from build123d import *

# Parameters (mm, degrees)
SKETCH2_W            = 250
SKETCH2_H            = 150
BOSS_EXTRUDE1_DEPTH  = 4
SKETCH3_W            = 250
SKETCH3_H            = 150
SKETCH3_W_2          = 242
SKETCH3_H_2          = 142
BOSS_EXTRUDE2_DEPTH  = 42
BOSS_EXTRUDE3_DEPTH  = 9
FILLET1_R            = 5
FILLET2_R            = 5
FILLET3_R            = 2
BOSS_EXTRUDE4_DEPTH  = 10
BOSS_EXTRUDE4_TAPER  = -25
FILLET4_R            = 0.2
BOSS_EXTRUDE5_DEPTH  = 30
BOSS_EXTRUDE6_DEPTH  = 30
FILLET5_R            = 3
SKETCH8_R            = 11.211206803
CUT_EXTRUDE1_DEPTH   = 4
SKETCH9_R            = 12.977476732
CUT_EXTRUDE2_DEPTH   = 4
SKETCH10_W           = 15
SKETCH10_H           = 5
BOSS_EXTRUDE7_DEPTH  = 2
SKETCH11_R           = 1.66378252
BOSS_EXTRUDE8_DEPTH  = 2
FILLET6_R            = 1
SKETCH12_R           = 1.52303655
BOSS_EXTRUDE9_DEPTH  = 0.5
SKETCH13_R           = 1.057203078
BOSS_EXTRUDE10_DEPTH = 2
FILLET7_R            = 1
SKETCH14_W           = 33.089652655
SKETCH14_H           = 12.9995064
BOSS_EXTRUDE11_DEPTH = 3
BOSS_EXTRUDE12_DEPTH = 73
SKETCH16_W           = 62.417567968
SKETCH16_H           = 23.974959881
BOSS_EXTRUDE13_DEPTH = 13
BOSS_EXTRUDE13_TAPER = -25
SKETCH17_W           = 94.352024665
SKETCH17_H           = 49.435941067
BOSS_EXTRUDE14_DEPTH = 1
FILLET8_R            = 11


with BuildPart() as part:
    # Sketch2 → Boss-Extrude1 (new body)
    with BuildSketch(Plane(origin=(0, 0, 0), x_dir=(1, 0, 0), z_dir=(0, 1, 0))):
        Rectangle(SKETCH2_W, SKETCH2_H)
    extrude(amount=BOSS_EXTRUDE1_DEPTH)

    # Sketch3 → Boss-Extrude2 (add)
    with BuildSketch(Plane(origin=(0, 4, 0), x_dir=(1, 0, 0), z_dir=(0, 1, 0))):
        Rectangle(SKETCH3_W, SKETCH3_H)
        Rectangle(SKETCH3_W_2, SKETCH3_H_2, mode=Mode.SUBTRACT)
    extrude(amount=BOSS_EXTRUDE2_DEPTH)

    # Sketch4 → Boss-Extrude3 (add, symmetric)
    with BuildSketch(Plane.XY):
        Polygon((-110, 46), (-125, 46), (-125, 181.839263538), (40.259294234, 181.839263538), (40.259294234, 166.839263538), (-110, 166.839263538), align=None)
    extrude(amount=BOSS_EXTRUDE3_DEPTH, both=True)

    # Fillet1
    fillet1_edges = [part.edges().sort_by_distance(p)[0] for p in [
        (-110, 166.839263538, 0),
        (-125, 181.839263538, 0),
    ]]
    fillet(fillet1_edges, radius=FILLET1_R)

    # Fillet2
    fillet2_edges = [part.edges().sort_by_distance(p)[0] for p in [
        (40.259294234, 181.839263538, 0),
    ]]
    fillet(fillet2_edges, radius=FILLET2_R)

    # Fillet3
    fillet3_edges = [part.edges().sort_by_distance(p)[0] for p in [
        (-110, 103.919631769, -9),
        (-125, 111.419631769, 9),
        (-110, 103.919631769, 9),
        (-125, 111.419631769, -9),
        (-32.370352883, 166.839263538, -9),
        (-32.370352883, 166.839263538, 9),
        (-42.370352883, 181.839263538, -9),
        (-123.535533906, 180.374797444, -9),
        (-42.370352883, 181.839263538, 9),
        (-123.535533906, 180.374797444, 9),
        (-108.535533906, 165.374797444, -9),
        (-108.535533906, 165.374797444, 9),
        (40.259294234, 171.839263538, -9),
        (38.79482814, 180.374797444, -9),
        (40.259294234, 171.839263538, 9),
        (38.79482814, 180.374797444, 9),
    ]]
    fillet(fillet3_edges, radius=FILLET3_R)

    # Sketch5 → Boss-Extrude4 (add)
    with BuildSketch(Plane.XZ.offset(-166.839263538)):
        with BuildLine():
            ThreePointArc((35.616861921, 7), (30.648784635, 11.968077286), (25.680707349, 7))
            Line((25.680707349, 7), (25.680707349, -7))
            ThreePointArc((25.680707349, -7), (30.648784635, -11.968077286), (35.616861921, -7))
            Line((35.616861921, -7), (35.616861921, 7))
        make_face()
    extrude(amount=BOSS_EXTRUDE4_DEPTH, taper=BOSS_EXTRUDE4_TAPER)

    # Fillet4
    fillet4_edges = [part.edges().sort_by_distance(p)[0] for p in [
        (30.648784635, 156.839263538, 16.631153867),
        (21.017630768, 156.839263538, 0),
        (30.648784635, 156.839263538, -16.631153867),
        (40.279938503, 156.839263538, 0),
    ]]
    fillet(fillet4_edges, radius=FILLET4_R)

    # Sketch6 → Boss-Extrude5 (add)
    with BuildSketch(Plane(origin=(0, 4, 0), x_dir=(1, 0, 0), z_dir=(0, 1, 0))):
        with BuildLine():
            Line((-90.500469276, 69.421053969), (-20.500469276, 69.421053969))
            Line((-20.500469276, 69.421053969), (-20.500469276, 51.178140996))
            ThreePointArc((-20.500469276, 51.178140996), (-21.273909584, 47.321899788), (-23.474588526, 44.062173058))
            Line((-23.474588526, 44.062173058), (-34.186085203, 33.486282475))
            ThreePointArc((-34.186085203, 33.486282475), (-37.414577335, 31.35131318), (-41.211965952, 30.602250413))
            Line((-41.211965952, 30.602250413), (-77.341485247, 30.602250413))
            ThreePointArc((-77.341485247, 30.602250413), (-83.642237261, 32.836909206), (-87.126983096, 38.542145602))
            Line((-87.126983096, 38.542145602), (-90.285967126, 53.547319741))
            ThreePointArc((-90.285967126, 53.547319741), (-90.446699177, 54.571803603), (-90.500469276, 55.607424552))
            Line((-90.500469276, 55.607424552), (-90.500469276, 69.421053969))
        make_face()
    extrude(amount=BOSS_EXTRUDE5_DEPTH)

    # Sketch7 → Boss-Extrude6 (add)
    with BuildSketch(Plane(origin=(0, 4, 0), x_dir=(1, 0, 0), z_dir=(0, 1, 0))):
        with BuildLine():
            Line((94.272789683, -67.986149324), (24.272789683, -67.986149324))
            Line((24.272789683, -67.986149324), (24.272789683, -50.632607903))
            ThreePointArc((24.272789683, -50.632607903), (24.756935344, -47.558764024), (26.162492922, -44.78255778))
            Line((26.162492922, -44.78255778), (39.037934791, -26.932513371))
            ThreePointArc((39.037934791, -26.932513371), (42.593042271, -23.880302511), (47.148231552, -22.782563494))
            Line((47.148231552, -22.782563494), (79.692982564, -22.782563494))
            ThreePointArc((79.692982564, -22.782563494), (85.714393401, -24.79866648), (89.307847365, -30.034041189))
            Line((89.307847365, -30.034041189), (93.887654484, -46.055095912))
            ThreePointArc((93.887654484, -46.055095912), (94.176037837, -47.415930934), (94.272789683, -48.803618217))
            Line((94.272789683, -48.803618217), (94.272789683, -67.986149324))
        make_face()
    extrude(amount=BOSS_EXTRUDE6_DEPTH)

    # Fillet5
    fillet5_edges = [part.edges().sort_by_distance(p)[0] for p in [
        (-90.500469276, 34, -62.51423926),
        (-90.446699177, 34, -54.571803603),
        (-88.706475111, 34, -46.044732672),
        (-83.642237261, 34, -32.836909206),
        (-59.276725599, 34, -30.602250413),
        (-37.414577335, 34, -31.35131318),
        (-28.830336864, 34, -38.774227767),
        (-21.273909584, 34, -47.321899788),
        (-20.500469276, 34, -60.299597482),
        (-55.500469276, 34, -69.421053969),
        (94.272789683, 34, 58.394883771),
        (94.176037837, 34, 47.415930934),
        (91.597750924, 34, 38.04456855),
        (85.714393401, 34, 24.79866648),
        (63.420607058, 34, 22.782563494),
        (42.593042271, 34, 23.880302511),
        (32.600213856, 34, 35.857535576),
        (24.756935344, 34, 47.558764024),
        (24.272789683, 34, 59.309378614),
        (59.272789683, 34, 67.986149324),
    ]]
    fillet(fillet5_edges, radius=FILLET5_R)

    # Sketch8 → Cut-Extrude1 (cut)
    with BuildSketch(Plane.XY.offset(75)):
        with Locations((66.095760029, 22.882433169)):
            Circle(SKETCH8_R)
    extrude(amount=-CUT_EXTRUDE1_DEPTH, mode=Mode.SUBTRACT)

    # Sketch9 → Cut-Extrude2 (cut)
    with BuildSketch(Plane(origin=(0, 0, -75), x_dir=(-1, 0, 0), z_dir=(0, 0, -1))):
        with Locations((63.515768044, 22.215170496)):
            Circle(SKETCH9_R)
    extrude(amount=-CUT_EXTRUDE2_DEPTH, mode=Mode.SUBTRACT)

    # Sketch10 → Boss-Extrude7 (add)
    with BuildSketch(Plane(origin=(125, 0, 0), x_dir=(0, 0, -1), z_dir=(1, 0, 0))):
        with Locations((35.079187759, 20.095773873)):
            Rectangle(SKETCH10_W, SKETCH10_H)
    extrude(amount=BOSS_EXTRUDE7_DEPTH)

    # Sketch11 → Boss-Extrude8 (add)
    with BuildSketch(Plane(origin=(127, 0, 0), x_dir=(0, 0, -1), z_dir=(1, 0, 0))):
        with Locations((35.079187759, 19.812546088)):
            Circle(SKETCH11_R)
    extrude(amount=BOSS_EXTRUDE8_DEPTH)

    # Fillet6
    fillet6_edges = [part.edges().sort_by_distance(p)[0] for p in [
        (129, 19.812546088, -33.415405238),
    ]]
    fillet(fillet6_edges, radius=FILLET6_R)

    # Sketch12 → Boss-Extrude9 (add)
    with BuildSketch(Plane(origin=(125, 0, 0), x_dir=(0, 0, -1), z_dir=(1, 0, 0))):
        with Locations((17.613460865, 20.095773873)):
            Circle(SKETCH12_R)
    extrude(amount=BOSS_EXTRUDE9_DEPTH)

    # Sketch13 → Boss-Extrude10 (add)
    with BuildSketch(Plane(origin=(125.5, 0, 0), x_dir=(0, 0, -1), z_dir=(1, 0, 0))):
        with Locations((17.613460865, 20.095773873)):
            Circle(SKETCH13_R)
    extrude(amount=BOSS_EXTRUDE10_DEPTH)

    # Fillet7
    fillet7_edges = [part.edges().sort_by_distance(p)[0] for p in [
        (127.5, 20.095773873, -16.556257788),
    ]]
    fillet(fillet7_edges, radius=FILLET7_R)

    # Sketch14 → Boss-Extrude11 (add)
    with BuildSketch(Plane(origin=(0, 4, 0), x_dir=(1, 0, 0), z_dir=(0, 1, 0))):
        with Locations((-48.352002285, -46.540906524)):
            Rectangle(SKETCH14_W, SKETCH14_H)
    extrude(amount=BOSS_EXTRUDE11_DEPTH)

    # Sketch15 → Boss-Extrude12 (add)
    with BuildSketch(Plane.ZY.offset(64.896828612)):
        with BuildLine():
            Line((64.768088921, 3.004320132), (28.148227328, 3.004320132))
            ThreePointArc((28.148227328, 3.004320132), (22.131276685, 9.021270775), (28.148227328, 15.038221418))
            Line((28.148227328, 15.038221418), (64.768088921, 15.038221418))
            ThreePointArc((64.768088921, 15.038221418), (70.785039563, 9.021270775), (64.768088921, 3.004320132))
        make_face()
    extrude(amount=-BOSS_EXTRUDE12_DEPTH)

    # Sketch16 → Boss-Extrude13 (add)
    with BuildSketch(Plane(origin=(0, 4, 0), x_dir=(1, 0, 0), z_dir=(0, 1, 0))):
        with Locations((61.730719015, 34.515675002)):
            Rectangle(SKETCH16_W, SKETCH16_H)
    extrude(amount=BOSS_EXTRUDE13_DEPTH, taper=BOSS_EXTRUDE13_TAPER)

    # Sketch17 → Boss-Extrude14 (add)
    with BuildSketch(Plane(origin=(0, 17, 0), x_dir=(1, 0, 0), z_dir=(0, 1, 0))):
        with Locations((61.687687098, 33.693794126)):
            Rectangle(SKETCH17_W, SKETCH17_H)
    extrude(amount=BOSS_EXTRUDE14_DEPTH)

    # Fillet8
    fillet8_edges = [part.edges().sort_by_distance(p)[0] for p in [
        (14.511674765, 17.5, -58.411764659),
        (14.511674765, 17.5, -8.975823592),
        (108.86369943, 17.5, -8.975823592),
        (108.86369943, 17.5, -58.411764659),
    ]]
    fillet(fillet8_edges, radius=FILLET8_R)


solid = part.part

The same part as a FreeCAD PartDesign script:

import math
import FreeCAD as App
import Part
import Sketcher
Q = App.Units.Quantity


def edges_at(feature, points):
    """Names of the edges that pass closest to the given points."""
    edges = feature.Shape.Edges
    near = lambda p: min(range(len(edges)), key=lambda i: edges[i].distToShape(Part.Vertex(*p))[0])
    return sorted({f"Edge{near(p) + 1}" for p in points})

doc = App.newDocument("Part")
body = doc.addObject("PartDesign::Body", "Body")

sketch1 = body.newObject("Sketcher::SketchObject", "Sketch")
sketch1.AttachmentSupport = (doc.getObject("XZ_Plane"), [""])
sketch1.MapMode = "FlatFace"
sketch1.addGeometry(Part.LineSegment(App.Vector(-125, -75, 0), App.Vector(-125, 75, 0)), False)
sketch1.addGeometry(Part.LineSegment(App.Vector(-125, 75, 0), App.Vector(125, 75, 0)), False)
sketch1.addGeometry(Part.LineSegment(App.Vector(125, 75, 0), App.Vector(125, -75, 0)), False)
sketch1.addGeometry(Part.LineSegment(App.Vector(125, -75, 0), App.Vector(-125, -75, 0)), False)
sketch1.addConstraint(Sketcher.Constraint("Coincident", 0, 2, 1, 1))
sketch1.addConstraint(Sketcher.Constraint("Coincident", 1, 2, 2, 1))
sketch1.addConstraint(Sketcher.Constraint("Coincident", 2, 2, 3, 1))
sketch1.addConstraint(Sketcher.Constraint("Coincident", 3, 2, 0, 1))
sketch1.addConstraint(Sketcher.Constraint("Vertical", 0))
sketch1.addConstraint(Sketcher.Constraint("Horizontal", 1))
sketch1.addConstraint(Sketcher.Constraint("Vertical", 2))
sketch1.addConstraint(Sketcher.Constraint("Horizontal", 3))
sketch1.addConstraint(Sketcher.Constraint("Symmetric", 0, 2, 2, 2, -1, 1))
sketch1.addConstraint(Sketcher.Constraint("DistanceX", 1, 1, 1, 2, Q("250 mm")))
sketch1.addConstraint(Sketcher.Constraint("DistanceY", 0, 1, 0, 2, Q("150 mm")))
pad1 = body.newObject("PartDesign::Pad", "Pad")
pad1.Profile = sketch1
pad1.Length = 4
pad1.Reversed = True

sketch2 = body.newObject("Sketcher::SketchObject", "Sketch001")
sketch2.AttachmentSupport = (doc.getObject("XZ_Plane"), [""])
sketch2.MapMode = "FlatFace"
sketch2.AttachmentOffset = App.Placement(App.Vector(0, 0, -4), App.Rotation())
sketch2.addGeometry(Part.LineSegment(App.Vector(-125, -75, 0), App.Vector(-125, 75, 0)), False)
sketch2.addGeometry(Part.LineSegment(App.Vector(-125, 75, 0), App.Vector(125, 75, 0)), False)
sketch2.addGeometry(Part.LineSegment(App.Vector(125, 75, 0), App.Vector(125, -75, 0)), False)
sketch2.addGeometry(Part.LineSegment(App.Vector(125, -75, 0), App.Vector(-125, -75, 0)), False)
sketch2.addGeometry(Part.LineSegment(App.Vector(121, 71, 0), App.Vector(-121, 71, 0)), False)
sketch2.addGeometry(Part.LineSegment(App.Vector(-121, 71, 0), App.Vector(-121, -71, 0)), False)
sketch2.addGeometry(Part.LineSegment(App.Vector(-121, -71, 0), App.Vector(121, -71, 0)), False)
sketch2.addGeometry(Part.LineSegment(App.Vector(121, -71, 0), App.Vector(121, 71, 0)), False)
sketch2.addConstraint(Sketcher.Constraint("Coincident", 0, 2, 1, 1))
sketch2.addConstraint(Sketcher.Constraint("Coincident", 1, 2, 2, 1))
sketch2.addConstraint(Sketcher.Constraint("Coincident", 2, 2, 3, 1))
sketch2.addConstraint(Sketcher.Constraint("Coincident", 3, 2, 0, 1))
sketch2.addConstraint(Sketcher.Constraint("Coincident", 4, 2, 5, 1))
sketch2.addConstraint(Sketcher.Constraint("Coincident", 5, 2, 6, 1))
sketch2.addConstraint(Sketcher.Constraint("Coincident", 6, 2, 7, 1))
sketch2.addConstraint(Sketcher.Constraint("Coincident", 7, 2, 4, 1))
sketch2.addConstraint(Sketcher.Constraint("Vertical", 0))
sketch2.addConstraint(Sketcher.Constraint("Horizontal", 1))
sketch2.addConstraint(Sketcher.Constraint("Vertical", 2))
sketch2.addConstraint(Sketcher.Constraint("Horizontal", 3))
sketch2.addConstraint(Sketcher.Constraint("Horizontal", 4))
sketch2.addConstraint(Sketcher.Constraint("Vertical", 5))
sketch2.addConstraint(Sketcher.Constraint("Horizontal", 6))
sketch2.addConstraint(Sketcher.Constraint("Vertical", 7))
sketch2.addConstraint(Sketcher.Constraint("Symmetric", 0, 2, 2, 2, -1, 1))
sketch2.addConstraint(Sketcher.Constraint("Symmetric", 4, 2, 6, 2, -1, 1))
sketch2.addConstraint(Sketcher.Constraint("DistanceX", 1, 1, 1, 2, Q("250 mm")))
sketch2.addConstraint(Sketcher.Constraint("DistanceX", 4, 2, 4, 1, Q("242 mm")))
sketch2.addConstraint(Sketcher.Constraint("DistanceY", 0, 1, 0, 2, Q("150 mm")))
sketch2.addConstraint(Sketcher.Constraint("DistanceY", 5, 2, 5, 1, Q("142 mm")))
pad2 = body.newObject("PartDesign::Pad", "Pad001")
pad2.Profile = sketch2
pad2.Length = 42
pad2.Reversed = True

sketch3 = body.newObject("Sketcher::SketchObject", "Sketch002")
sketch3.AttachmentSupport = (doc.getObject("XY_Plane"), [""])
sketch3.MapMode = "FlatFace"
sketch3.addGeometry(Part.LineSegment(App.Vector(-125, 46, 0), App.Vector(-110, 46, 0)), False)
sketch3.addGeometry(Part.LineSegment(App.Vector(-110, 46, 0), App.Vector(-110, 167, 0)), False)
sketch3.addGeometry(Part.LineSegment(App.Vector(-110, 167, 0), App.Vector(40, 167, 0)), False)
sketch3.addGeometry(Part.LineSegment(App.Vector(40, 167, 0), App.Vector(40, 182, 0)), False)
sketch3.addGeometry(Part.LineSegment(App.Vector(40, 182, 0), App.Vector(-125, 182, 0)), False)
sketch3.addGeometry(Part.LineSegment(App.Vector(-125, 182, 0), App.Vector(-125, 46, 0)), False)
sketch3.addConstraint(Sketcher.Constraint("Coincident", 0, 2, 1, 1))
sketch3.addConstraint(Sketcher.Constraint("Coincident", 1, 2, 2, 1))
sketch3.addConstraint(Sketcher.Constraint("Coincident", 2, 2, 3, 1))
sketch3.addConstraint(Sketcher.Constraint("Coincident", 3, 2, 4, 1))
sketch3.addConstraint(Sketcher.Constraint("Coincident", 4, 2, 5, 1))
sketch3.addConstraint(Sketcher.Constraint("Coincident", 5, 2, 0, 1))
sketch3.addConstraint(Sketcher.Constraint("Horizontal", 0))
sketch3.addConstraint(Sketcher.Constraint("Vertical", 1))
sketch3.addConstraint(Sketcher.Constraint("Horizontal", 2))
sketch3.addConstraint(Sketcher.Constraint("Vertical", 3))
sketch3.addConstraint(Sketcher.Constraint("Horizontal", 4))
sketch3.addConstraint(Sketcher.Constraint("Vertical", 5))
sketch3.addConstraint(Sketcher.Constraint("Equal", 0, 3))
sketch3.addConstraint(Sketcher.Constraint("DistanceX", 0, 1, 0, 2, Q("15 mm")))
sketch3.addConstraint(Sketcher.Constraint("DistanceX", 0, 2, -1, 1, Q("110 mm")))
sketch3.addConstraint(Sketcher.Constraint("DistanceY", -1, 1, 0, 2, Q("46 mm")))
sketch3.addConstraint(Sketcher.Constraint("DistanceX", 2, 1, 2, 2, Q("150.259294 mm")))
sketch3.addConstraint(Sketcher.Constraint("DistanceY", 1, 1, 1, 2, Q("120.839264 mm")))
pad3 = body.newObject("PartDesign::Pad", "Pad002")
pad3.Profile = sketch3
pad3.Length = 18
pad3.Midplane = True
doc.recompute()

fillet = body.newObject("PartDesign::Fillet", "Fillet")
fillet.Base = (pad3, edges_at(pad3, [(-110, 166.839, 0), (-125, 181.839, 0)]))
fillet.Radius = 5
doc.recompute()

fillet2 = body.newObject("PartDesign::Fillet", "Fillet001")
fillet2.Base = (fillet, edges_at(fillet, [(40.259, 181.839, 0)]))
fillet2.Radius = 5
doc.recompute()

fillet3 = body.newObject("PartDesign::Fillet", "Fillet002")
fillet3.Base = (fillet2, edges_at(fillet2, [
    (-110, 103.92, -9),
    (-125, 111.42, 9),
    (-110, 103.92, 9),
    (-125, 111.42, -9),
    (-32.37, 166.839, -9),
    (-32.37, 166.839, 9),
    (-42.37, 181.839, -9),
    (-123.536, 180.375, -9),
    (-42.37, 181.839, 9),
    (-123.536, 180.375, 9),
    (-108.536, 165.375, -9),
    (-108.536, 165.375, 9),
    (40.259, 171.839, -9),
    (38.795, 180.375, -9),
    (40.259, 171.839, 9),
    (38.795, 180.375, 9),
]))
fillet3.Radius = 2

sketch4 = body.newObject("Sketcher::SketchObject", "Sketch003")
sketch4.AttachmentSupport = (doc.getObject("XZ_Plane"), [""])
sketch4.MapMode = "FlatFace"
sketch4.AttachmentOffset = App.Placement(App.Vector(0, 0, -166.839264), App.Rotation())
sketch4.addGeometry(Part.ArcOfCircle(Part.Circle(App.Vector(30.6, 7, 0), App.Vector(0, 0, 1), 5), math.radians(0), math.radians(180)), False)
sketch4.addGeometry(Part.LineSegment(App.Vector(25.7, 7, 0), App.Vector(25.7, -7, 0)), False)
sketch4.addGeometry(Part.ArcOfCircle(Part.Circle(App.Vector(30.6, -7, 0), App.Vector(0, 0, 1), 5), math.radians(180), math.radians(360)), False)
sketch4.addGeometry(Part.LineSegment(App.Vector(35.6, -7, 0), App.Vector(35.6, 7, 0)), False)
sketch4.addConstraint(Sketcher.Constraint("Tangent", 0, 2, 1, 1))
sketch4.addConstraint(Sketcher.Constraint("Tangent", 1, 2, 2, 1))
sketch4.addConstraint(Sketcher.Constraint("Tangent", 2, 2, 3, 1))
sketch4.addConstraint(Sketcher.Constraint("Tangent", 3, 2, 0, 1))
sketch4.addConstraint(Sketcher.Constraint("Vertical", 1))
sketch4.addConstraint(Sketcher.Constraint("Vertical", 3))
sketch4.addConstraint(Sketcher.Constraint("DistanceY", 1, 2, 1, 1, Q("14 mm")))
sketch4.addConstraint(Sketcher.Constraint("DistanceY", -1, 1, 0, 3, Q("7 mm")))
sketch4.addConstraint(Sketcher.Constraint("Radius", 0, Q("4.968077 mm")))
sketch4.addConstraint(Sketcher.Constraint("DistanceX", -1, 1, 2, 2, Q("35.616862 mm")))
pad4 = body.newObject("PartDesign::Pad", "Pad003")
pad4.Profile = sketch4
pad4.Length = 10
pad4.TaperAngle = 25
doc.recompute()

fillet4 = body.newObject("PartDesign::Fillet", "Fillet003")
fillet4.Base = (pad4, edges_at(pad4, [
    (30.649, 156.839, 16.631),
    (21.018, 156.839, 0),
    (30.649, 156.839, -16.631),
    (40.28, 156.839, 0),
]))
fillet4.Radius = 0.2

sketch5 = body.newObject("Sketcher::SketchObject", "Sketch004")
sketch5.AttachmentSupport = (doc.getObject("XZ_Plane"), [""])
sketch5.MapMode = "FlatFace"
sketch5.AttachmentOffset = App.Placement(App.Vector(0, 0, -4), App.Rotation())
sketch5.addGeometry(Part.LineSegment(App.Vector(-20.500469, -69.421054, 0), App.Vector(-90.500469, -69.421054, 0)), False)
sketch5.addGeometry(Part.LineSegment(App.Vector(-90.500469, -69.421054, 0), App.Vector(-90.500469, -55.607425, 0)), False)
sketch5.addGeometry(Part.ArcOfCircle(Part.Circle(App.Vector(-80.500469, -55.607425, 0), App.Vector(0, 0, 1), 10), math.radians(168.111342), math.radians(180)), False)
sketch5.addGeometry(Part.LineSegment(App.Vector(-90.285967, -53.54732, 0), App.Vector(-87.126983, -38.542146, 0)), False)
sketch5.addGeometry(Part.ArcOfCircle(Part.Circle(App.Vector(-77.341485, -40.60225, 0), App.Vector(0, 0, 1), 10), math.radians(90), math.radians(168.111342)), False)
sketch5.addGeometry(Part.LineSegment(App.Vector(-77.341485, -30.60225, 0), App.Vector(-41.211966, -30.60225, 0)), False)
sketch5.addGeometry(Part.ArcOfCircle(Part.Circle(App.Vector(-41.211966, -40.60225, 0), App.Vector(0, 0, 1), 10), math.radians(45.364984), math.radians(90)), False)
sketch5.addGeometry(Part.LineSegment(App.Vector(-34.186085, -33.486282, 0), App.Vector(-23.474589, -44.062173, 0)), False)
sketch5.addGeometry(Part.ArcOfCircle(Part.Circle(App.Vector(-30.500469, -51.178141, 0), App.Vector(0, 0, 1), 10), math.radians(0), math.radians(45.364984)), False)
sketch5.addGeometry(Part.LineSegment(App.Vector(-20.500469, -51.178141, 0), App.Vector(-20.500469, -69.421054, 0)), False)
sketch5.addConstraint(Sketcher.Constraint("Coincident", 0, 2, 1, 1))
sketch5.addConstraint(Sketcher.Constraint("Coincident", 1, 2, 2, 2))
sketch5.addConstraint(Sketcher.Constraint("Coincident", 2, 1, 3, 1))
sketch5.addConstraint(Sketcher.Constraint("Coincident", 3, 2, 4, 2))
sketch5.addConstraint(Sketcher.Constraint("Coincident", 4, 1, 5, 1))
sketch5.addConstraint(Sketcher.Constraint("Coincident", 5, 2, 6, 2))
sketch5.addConstraint(Sketcher.Constraint("Coincident", 6, 1, 7, 1))
sketch5.addConstraint(Sketcher.Constraint("Coincident", 7, 2, 8, 2))
sketch5.addConstraint(Sketcher.Constraint("Coincident", 8, 1, 9, 1))
sketch5.addConstraint(Sketcher.Constraint("Coincident", 9, 2, 0, 1))
sketch5.addConstraint(Sketcher.Constraint("Horizontal", 0))
sketch5.addConstraint(Sketcher.Constraint("Vertical", 1))
sketch5.addConstraint(Sketcher.Constraint("Horizontal", 5))
sketch5.addConstraint(Sketcher.Constraint("Vertical", 9))
sketch5.addConstraint(Sketcher.Constraint("Radius", 2, Q("10 mm")))
sketch5.addConstraint(Sketcher.Constraint("Radius", 4, Q("10 mm")))
sketch5.addConstraint(Sketcher.Constraint("Radius", 6, Q("10 mm")))
sketch5.addConstraint(Sketcher.Constraint("Radius", 8, Q("10 mm")))
sketch5.addConstraint(Sketcher.Constraint("DistanceX", 0, 2, 0, 1, Q("70 mm")))
sketch5.addConstraint(Sketcher.Constraint("DistanceX", 2, 1, 6, 3, Q("49.074001 mm")))
sketch5.addConstraint(Sketcher.Constraint("DistanceX", 5, 1, 5, 2, Q("36.129519 mm")))
sketch5.addConstraint(Sketcher.Constraint("DistanceY", 1, 1, 1, 2, Q("13.813629 mm")))
sketch5.addConstraint(Sketcher.Constraint("DistanceX", 4, 1, 6, 1, Q("43.1554 mm")))
sketch5.addConstraint(Sketcher.Constraint("DistanceX", 4, 3, 6, 1, Q("43.1554 mm")))
sketch5.addConstraint(Sketcher.Constraint("Distance", 7, Q("15.052761 mm")))
sketch5.addConstraint(Sketcher.Constraint("DistanceY", 9, 2, 9, 1, Q("18.242913 mm")))
sketch5.addConstraint(Sketcher.Constraint("DistanceX", 2, 3, -1, 1, Q("80.500469 mm")))
sketch5.addConstraint(Sketcher.Constraint("DistanceY", 4, 3, -1, 1, Q("40.60225 mm")))
sketch5.addConstraint(Sketcher.Constraint("DistanceY", 8, 3, -1, 1, Q("51.178141 mm")))
sketch5.addConstraint(Sketcher.Constraint("DistanceY", 2, 1, -1, 1, Q("53.54732 mm")))
sketch5.addConstraint(Sketcher.Constraint("DistanceX", 7, 2, -1, 1, Q("23.474589 mm")))
sketch5.addConstraint(Sketcher.Constraint("DistanceY", 8, 1, -1, 1, Q("51.178141 mm")))
sketch5.addConstraint(Sketcher.Constraint("DistanceX", 4, 3, 6, 3, Q("36.129519 mm")))
sketch5.addConstraint(Sketcher.Constraint("DistanceY", 1, 2, 3, 2, Q("17.065279 mm")))
pad5 = body.newObject("PartDesign::Pad", "Pad004")
pad5.Profile = sketch5
pad5.Length = 30
pad5.Reversed = True

sketch6 = body.newObject("Sketcher::SketchObject", "Sketch005")
sketch6.AttachmentSupport = (doc.getObject("XZ_Plane"), [""])
sketch6.MapMode = "FlatFace"
sketch6.AttachmentOffset = App.Placement(App.Vector(0, 0, -4), App.Rotation())
sketch6.addGeometry(Part.LineSegment(App.Vector(24.3, 68, 0), App.Vector(94.3, 68, 0)), False)
sketch6.addGeometry(Part.LineSegment(App.Vector(94.3, 68, 0), App.Vector(94.3, 48.8, 0)), False)
sketch6.addGeometry(Part.ArcOfCircle(Part.Circle(App.Vector(84.3, 48.8, 0), App.Vector(0, 0, 1), 10), math.radians(-15.95), math.radians(0)), False)
sketch6.addGeometry(Part.LineSegment(App.Vector(93.9, 46.1, 0), App.Vector(89.3, 30, 0)), False)
sketch6.addGeometry(Part.ArcOfCircle(Part.Circle(App.Vector(79.7, 32.8, 0), App.Vector(0, 0, 1), 10), math.radians(-90), math.radians(-16)), False)
sketch6.addGeometry(Part.LineSegment(App.Vector(79.7, 22.8, 0), App.Vector(47.1, 22.8, 0)), False)
sketch6.addGeometry(Part.ArcOfCircle(Part.Circle(App.Vector(47.1, 32.8, 0), App.Vector(0, 0, 1), 10), math.radians(-144), math.radians(-90)), False)
sketch6.addGeometry(Part.LineSegment(App.Vector(39, 26.9, 0), App.Vector(26.2, 44.8, 0)), False)
sketch6.addGeometry(Part.ArcOfCircle(Part.Circle(App.Vector(34.3, 50.6, 0), App.Vector(0, 0, 1), 10), math.radians(-180), math.radians(-144)), False)
sketch6.addGeometry(Part.LineSegment(App.Vector(24.3, 50.6, 0), App.Vector(24.3, 68, 0)), False)
sketch6.addConstraint(Sketcher.Constraint("Coincident", 0, 2, 1, 1))
sketch6.addConstraint(Sketcher.Constraint("Tangent", 1, 2, 2, 2))
sketch6.addConstraint(Sketcher.Constraint("Tangent", 2, 1, 3, 1))
sketch6.addConstraint(Sketcher.Constraint("Tangent", 3, 2, 4, 2))
sketch6.addConstraint(Sketcher.Constraint("Tangent", 4, 1, 5, 1))
sketch6.addConstraint(Sketcher.Constraint("Tangent", 5, 2, 6, 2))
sketch6.addConstraint(Sketcher.Constraint("Tangent", 6, 1, 7, 1))
sketch6.addConstraint(Sketcher.Constraint("Tangent", 7, 2, 8, 2))
sketch6.addConstraint(Sketcher.Constraint("Tangent", 8, 1, 9, 1))
sketch6.addConstraint(Sketcher.Constraint("Coincident", 9, 2, 0, 1))
sketch6.addConstraint(Sketcher.Constraint("Horizontal", 0))
sketch6.addConstraint(Sketcher.Constraint("Vertical", 1))
sketch6.addConstraint(Sketcher.Constraint("Horizontal", 5))
sketch6.addConstraint(Sketcher.Constraint("Vertical", 9))
sketch6.addConstraint(Sketcher.Constraint("Equal", 2, 4))
sketch6.addConstraint(Sketcher.Constraint("Equal", 4, 6))
sketch6.addConstraint(Sketcher.Constraint("Equal", 6, 8))
sketch6.addConstraint(Sketcher.Constraint("Radius", 2, Q("10 mm")))
sketch6.addConstraint(Sketcher.Constraint("DistanceX", 0, 1, 0, 2, Q("70 mm")))
sketch6.addConstraint(Sketcher.Constraint("DistanceX", 5, 2, 5, 1, Q("32.544751 mm")))
sketch6.addConstraint(Sketcher.Constraint("DistanceY", 1, 2, 1, 1, Q("19.182531 mm")))
sketch6.addConstraint(Sketcher.Constraint("DistanceY", 9, 1, 9, 2, Q("17.353541 mm")))
sketch6.addConstraint(Sketcher.Constraint("DistanceX", -1, 1, 2, 3, Q("84.27279 mm")))
sketch6.addConstraint(Sketcher.Constraint("DistanceY", -1, 1, 2, 3, Q("48.803618 mm")))
sketch6.addConstraint(Sketcher.Constraint("DistanceX", -1, 1, 6, 3, Q("47.148232 mm")))
sketch6.addConstraint(Sketcher.Constraint("DistanceY", -1, 1, 3, 2, Q("30.034041 mm")))
pad6 = body.newObject("PartDesign::Pad", "Pad005")
pad6.Profile = sketch6
pad6.Length = 30
pad6.Reversed = True
doc.recompute()

fillet5 = body.newObject("PartDesign::Fillet", "Fillet004")
fillet5.Base = (pad6, edges_at(pad6, [
    (-90.5, 34, -62.514),
    (-90.447, 34, -54.572),
    (-88.706, 34, -46.045),
    (-83.642, 34, -32.837),
    (-59.277, 34, -30.602),
    (-37.415, 34, -31.351),
    (-28.83, 34, -38.774),
    (-21.274, 34, -47.322),
    (-20.5, 34, -60.3),
    (-55.5, 34, -69.421),
    (94.273, 34, 58.395),
    (94.176, 34, 47.416),
    (91.598, 34, 38.045),
    (85.714, 34, 24.799),
    (63.421, 34, 22.783),
    (42.593, 34, 23.88),
    (32.6, 34, 35.858),
    (24.757, 34, 47.559),
    (24.273, 34, 59.309),
    (59.273, 34, 67.986),
]))
fillet5.Radius = 3

sketch7 = body.newObject("Sketcher::SketchObject", "Sketch006")
sketch7.AttachmentSupport = (doc.getObject("XY_Plane"), [""])
sketch7.MapMode = "FlatFace"
sketch7.AttachmentOffset = App.Placement(App.Vector(0, 0, 75), App.Rotation())
sketch7.addGeometry(Part.Circle(App.Vector(66, 23, 0), App.Vector(0, 0, 1), 11), False)
sketch7.addConstraint(Sketcher.Constraint("Diameter", 0, Q("22.422414 mm")))
sketch7.addConstraint(Sketcher.Constraint("DistanceX", -1, 1, 0, 3, Q("66.09576 mm")))
sketch7.addConstraint(Sketcher.Constraint("DistanceY", -1, 1, 0, 3, Q("22.882433 mm")))
pocket1 = body.newObject("PartDesign::Pocket", "Pocket")
pocket1.Profile = sketch7
pocket1.Length = 4

sketch8 = body.newObject("Sketcher::SketchObject", "Sketch007")
sketch8.AttachmentSupport = (doc.getObject("XY_Plane"), [""])
sketch8.MapMode = "FlatFace"
sketch8.AttachmentOffset = App.Placement(App.Vector(0, 0, -75), App.Rotation())
sketch8.addGeometry(Part.Circle(App.Vector(-64, 22, 0), App.Vector(0, 0, 1), 13), False)
sketch8.addConstraint(Sketcher.Constraint("Diameter", 0, Q("25.954953 mm")))
sketch8.addConstraint(Sketcher.Constraint("DistanceX", 0, 3, -1, 1, Q("63.515768 mm")))
sketch8.addConstraint(Sketcher.Constraint("DistanceY", -1, 1, 0, 3, Q("22.21517 mm")))
pocket2 = body.newObject("PartDesign::Pocket", "Pocket001")
pocket2.Profile = sketch8
pocket2.Length = 4
pocket2.Reversed = True

sketch9 = body.newObject("Sketcher::SketchObject", "Sketch008")
sketch9.AttachmentSupport = (doc.getObject("YZ_Plane"), [""])
sketch9.MapMode = "FlatFace"
sketch9.AttachmentOffset = App.Placement(App.Vector(0, 0, 125), App.Rotation())
sketch9.addGeometry(Part.LineSegment(App.Vector(23, -28, 0), App.Vector(18, -28, 0)), False)
sketch9.addGeometry(Part.LineSegment(App.Vector(18, -28, 0), App.Vector(18, -43, 0)), False)
sketch9.addGeometry(Part.LineSegment(App.Vector(18, -43, 0), App.Vector(23, -43, 0)), False)
sketch9.addGeometry(Part.LineSegment(App.Vector(23, -43, 0), App.Vector(23, -28, 0)), False)
sketch9.addConstraint(Sketcher.Constraint("Coincident", 0, 2, 1, 1))
sketch9.addConstraint(Sketcher.Constraint("Coincident", 1, 2, 2, 1))
sketch9.addConstraint(Sketcher.Constraint("Coincident", 2, 2, 3, 1))
sketch9.addConstraint(Sketcher.Constraint("Coincident", 3, 2, 0, 1))
sketch9.addConstraint(Sketcher.Constraint("Horizontal", 0))
sketch9.addConstraint(Sketcher.Constraint("Vertical", 1))
sketch9.addConstraint(Sketcher.Constraint("Horizontal", 2))
sketch9.addConstraint(Sketcher.Constraint("Vertical", 3))
sketch9.addConstraint(Sketcher.Constraint("DistanceX", 0, 2, 0, 1, Q("5 mm")))
sketch9.addConstraint(Sketcher.Constraint("DistanceY", 1, 2, 1, 1, Q("15 mm")))
sketch9.addConstraint(Sketcher.Constraint("DistanceX", -1, 1, 0, 2, Q("17.595774 mm")))
sketch9.addConstraint(Sketcher.Constraint("DistanceY", 0, 2, -1, 1, Q("27.579188 mm")))
pad7 = body.newObject("PartDesign::Pad", "Pad006")
pad7.Profile = sketch9
pad7.Length = 2

sketch10 = body.newObject("Sketcher::SketchObject", "Sketch009")
sketch10.AttachmentSupport = (doc.getObject("YZ_Plane"), [""])
sketch10.MapMode = "FlatFace"
sketch10.AttachmentOffset = App.Placement(App.Vector(0, 0, 127), App.Rotation())
sketch10.addGeometry(Part.Circle(App.Vector(19.8, -35.1, 0), App.Vector(0, 0, 1), 1.7), False)
sketch10.addConstraint(Sketcher.Constraint("Diameter", 0, Q("3.327565 mm")))
sketch10.addConstraint(Sketcher.Constraint("DistanceX", -1, 1, 0, 3, Q("19.812546 mm")))
sketch10.addConstraint(Sketcher.Constraint("DistanceY", 0, 3, -1, 1, Q("35.079188 mm")))
pad8 = body.newObject("PartDesign::Pad", "Pad007")
pad8.Profile = sketch10
pad8.Length = 2
doc.recompute()

fillet6 = body.newObject("PartDesign::Fillet", "Fillet005")
fillet6.Base = (pad8, edges_at(pad8, [(129, 19.813, -33.415)]))
fillet6.Radius = 1

sketch11 = body.newObject("Sketcher::SketchObject", "Sketch010")
sketch11.AttachmentSupport = (doc.getObject("YZ_Plane"), [""])
sketch11.MapMode = "FlatFace"
sketch11.AttachmentOffset = App.Placement(App.Vector(0, 0, 125), App.Rotation())
sketch11.addGeometry(Part.Circle(App.Vector(20.1, -17.6, 0), App.Vector(0, 0, 1), 1.5), False)
sketch11.addConstraint(Sketcher.Constraint("Diameter", 0, Q("3.046073 mm")))
sketch11.addConstraint(Sketcher.Constraint("DistanceY", 0, 3, -1, 1, Q("17.613461 mm")))
sketch11.addConstraint(Sketcher.Constraint("DistanceX", -1, 1, 0, 3, Q("20.095774 mm")))
pad9 = body.newObject("PartDesign::Pad", "Pad008")
pad9.Profile = sketch11
pad9.Length = 0.5

sketch12 = body.newObject("Sketcher::SketchObject", "Sketch011")
sketch12.AttachmentSupport = (doc.getObject("YZ_Plane"), [""])
sketch12.MapMode = "FlatFace"
sketch12.AttachmentOffset = App.Placement(App.Vector(0, 0, 125.5), App.Rotation())
sketch12.addGeometry(Part.Circle(App.Vector(20.1, -17.6, 0), App.Vector(0, 0, 1), 1.1), False)
sketch12.addConstraint(Sketcher.Constraint("Diameter", 0, Q("2.114406 mm")))
sketch12.addConstraint(Sketcher.Constraint("DistanceY", 0, 3, -1, 1, Q("17.613461 mm")))
sketch12.addConstraint(Sketcher.Constraint("DistanceX", -1, 1, 0, 3, Q("20.095774 mm")))
pad10 = body.newObject("PartDesign::Pad", "Pad009")
pad10.Profile = sketch12
pad10.Length = 2
doc.recompute()

fillet7 = body.newObject("PartDesign::Fillet", "Fillet006")
fillet7.Base = (pad10, edges_at(pad10, [(127.5, 20.096, -16.556)]))
fillet7.Radius = 1

sketch13 = body.newObject("Sketcher::SketchObject", "Sketch012")
sketch13.AttachmentSupport = (doc.getObject("XZ_Plane"), [""])
sketch13.MapMode = "FlatFace"
sketch13.AttachmentOffset = App.Placement(App.Vector(0, 0, -4), App.Rotation())
sketch13.addGeometry(Part.LineSegment(App.Vector(-65, 40, 0), App.Vector(-65, 53, 0)), False)
sketch13.addGeometry(Part.LineSegment(App.Vector(-65, 53, 0), App.Vector(-32, 53, 0)), False)
sketch13.addGeometry(Part.LineSegment(App.Vector(-32, 53, 0), App.Vector(-32, 40, 0)), False)
sketch13.addGeometry(Part.LineSegment(App.Vector(-32, 40, 0), App.Vector(-65, 40, 0)), False)
sketch13.addConstraint(Sketcher.Constraint("Coincident", 0, 2, 1, 1))
sketch13.addConstraint(Sketcher.Constraint("Coincident", 1, 2, 2, 1))
sketch13.addConstraint(Sketcher.Constraint("Coincident", 2, 2, 3, 1))
sketch13.addConstraint(Sketcher.Constraint("Coincident", 3, 2, 0, 1))
sketch13.addConstraint(Sketcher.Constraint("Vertical", 0))
sketch13.addConstraint(Sketcher.Constraint("Horizontal", 1))
sketch13.addConstraint(Sketcher.Constraint("Vertical", 2))
sketch13.addConstraint(Sketcher.Constraint("Horizontal", 3))
sketch13.addConstraint(Sketcher.Constraint("DistanceX", 1, 1, 1, 2, Q("33.089653 mm")))
sketch13.addConstraint(Sketcher.Constraint("DistanceY", 0, 1, 0, 2, Q("12.999506 mm")))
sketch13.addConstraint(Sketcher.Constraint("DistanceX", 0, 2, -1, 1, Q("64.896829 mm")))
sketch13.addConstraint(Sketcher.Constraint("DistanceY", -1, 1, 0, 2, Q("53.04066 mm")))
pad11 = body.newObject("PartDesign::Pad", "Pad010")
pad11.Profile = sketch13
pad11.Length = 3
pad11.Reversed = True

sketch14 = body.newObject("Sketcher::SketchObject", "Sketch013")
sketch14.AttachmentSupport = (doc.getObject("YZ_Plane"), [""])
sketch14.MapMode = "FlatFace"
sketch14.AttachmentOffset = App.Placement(App.Vector(0, 0, -64.896829), App.Rotation())
sketch14.addGeometry(Part.LineSegment(App.Vector(3, 28, 0), App.Vector(3, 65, 0)), False)
sketch14.addGeometry(Part.ArcOfCircle(Part.Circle(App.Vector(9, 65, 0), App.Vector(0, 0, 1), 6), math.radians(0), math.radians(180)), False)
sketch14.addGeometry(Part.LineSegment(App.Vector(15, 65, 0), App.Vector(15, 28, 0)), False)
sketch14.addGeometry(Part.ArcOfCircle(Part.Circle(App.Vector(9, 28, 0), App.Vector(0, 0, 1), 6), math.radians(180), math.radians(360)), False)
sketch14.addConstraint(Sketcher.Constraint("Tangent", 0, 2, 1, 2))
sketch14.addConstraint(Sketcher.Constraint("Tangent", 1, 1, 2, 1))
sketch14.addConstraint(Sketcher.Constraint("Tangent", 2, 2, 3, 2))
sketch14.addConstraint(Sketcher.Constraint("Tangent", 3, 1, 0, 1))
sketch14.addConstraint(Sketcher.Constraint("Vertical", 0))
sketch14.addConstraint(Sketcher.Constraint("Vertical", 2))
sketch14.addConstraint(Sketcher.Constraint("Radius", 1, Q("6.016951 mm")))
sketch14.addConstraint(Sketcher.Constraint("DistanceY", 0, 1, 0, 2, Q("36.619862 mm")))
sketch14.addConstraint(Sketcher.Constraint("DistanceX", -1, 1, 1, 3, Q("9.021271 mm")))
sketch14.addConstraint(Sketcher.Constraint("DistanceY", -1, 1, 1, 3, Q("64.768089 mm")))
pad12 = body.newObject("PartDesign::Pad", "Pad011")
pad12.Profile = sketch14
pad12.Length = 73

sketch15 = body.newObject("Sketcher::SketchObject", "Sketch014")
sketch15.AttachmentSupport = (doc.getObject("XZ_Plane"), [""])
sketch15.MapMode = "FlatFace"
sketch15.AttachmentOffset = App.Placement(App.Vector(0, 0, -4), App.Rotation())
sketch15.addGeometry(Part.LineSegment(App.Vector(31, -47, 0), App.Vector(31, -23, 0)), False)
sketch15.addGeometry(Part.LineSegment(App.Vector(31, -23, 0), App.Vector(93, -23, 0)), False)
sketch15.addGeometry(Part.LineSegment(App.Vector(93, -23, 0), App.Vector(93, -47, 0)), False)
sketch15.addGeometry(Part.LineSegment(App.Vector(93, -47, 0), App.Vector(31, -47, 0)), False)
sketch15.addConstraint(Sketcher.Constraint("Coincident", 0, 2, 1, 1))
sketch15.addConstraint(Sketcher.Constraint("Coincident", 1, 2, 2, 1))
sketch15.addConstraint(Sketcher.Constraint("Coincident", 2, 2, 3, 1))
sketch15.addConstraint(Sketcher.Constraint("Coincident", 3, 2, 0, 1))
sketch15.addConstraint(Sketcher.Constraint("Vertical", 0))
sketch15.addConstraint(Sketcher.Constraint("Horizontal", 1))
sketch15.addConstraint(Sketcher.Constraint("Vertical", 2))
sketch15.addConstraint(Sketcher.Constraint("Horizontal", 3))
sketch15.addConstraint(Sketcher.Constraint("DistanceY", 0, 1, 0, 2, Q("23.97496 mm")))
sketch15.addConstraint(Sketcher.Constraint("DistanceX", 1, 1, 1, 2, Q("62.417568 mm")))
sketch15.addConstraint(Sketcher.Constraint("DistanceX", -1, 1, 0, 2, Q("30.521935 mm")))
sketch15.addConstraint(Sketcher.Constraint("DistanceY", 0, 2, -1, 1, Q("22.528195 mm")))
pad13 = body.newObject("PartDesign::Pad", "Pad012")
pad13.Profile = sketch15
pad13.Length = 13
pad13.Reversed = True
pad13.TaperAngle = 25

sketch16 = body.newObject("Sketcher::SketchObject", "Sketch015")
sketch16.AttachmentSupport = (doc.getObject("XZ_Plane"), [""])
sketch16.MapMode = "FlatFace"
sketch16.AttachmentOffset = App.Placement(App.Vector(0, 0, -17), App.Rotation())
sketch16.addGeometry(Part.LineSegment(App.Vector(15, -58, 0), App.Vector(15, -9, 0)), False)
sketch16.addGeometry(Part.LineSegment(App.Vector(15, -9, 0), App.Vector(109, -9, 0)), False)
sketch16.addGeometry(Part.LineSegment(App.Vector(109, -9, 0), App.Vector(109, -58, 0)), False)
sketch16.addGeometry(Part.LineSegment(App.Vector(109, -58, 0), App.Vector(15, -58, 0)), False)
sketch16.addConstraint(Sketcher.Constraint("Coincident", 0, 2, 1, 1))
sketch16.addConstraint(Sketcher.Constraint("Coincident", 1, 2, 2, 1))
sketch16.addConstraint(Sketcher.Constraint("Coincident", 2, 2, 3, 1))
sketch16.addConstraint(Sketcher.Constraint("Coincident", 3, 2, 0, 1))
sketch16.addConstraint(Sketcher.Constraint("Vertical", 0))
sketch16.addConstraint(Sketcher.Constraint("Horizontal", 1))
sketch16.addConstraint(Sketcher.Constraint("Vertical", 2))
sketch16.addConstraint(Sketcher.Constraint("Horizontal", 3))
sketch16.addConstraint(Sketcher.Constraint("DistanceY", 0, 1, 0, 2, Q("49.435941 mm")))
sketch16.addConstraint(Sketcher.Constraint("DistanceX", -1, 1, 1, 2, Q("108.863699 mm")))
sketch16.addConstraint(Sketcher.Constraint("DistanceX", 1, 1, 1, 2, Q("94.352025 mm")))
sketch16.addConstraint(Sketcher.Constraint("DistanceY", 0, 2, -1, 1, Q("8.975824 mm")))
pad14 = body.newObject("PartDesign::Pad", "Pad013")
pad14.Profile = sketch16
pad14.Length = 1
pad14.Reversed = True
doc.recompute()

fillet8 = body.newObject("PartDesign::Fillet", "Fillet007")
fillet8.Base = (pad14, edges_at(pad14, [
    (14.512, 17.5, -58.412),
    (14.512, 17.5, -8.976),
    (108.864, 17.5, -8.976),
    (108.864, 17.5, -58.412),
]))
fillet8.Radius = 11

doc.recompute()
